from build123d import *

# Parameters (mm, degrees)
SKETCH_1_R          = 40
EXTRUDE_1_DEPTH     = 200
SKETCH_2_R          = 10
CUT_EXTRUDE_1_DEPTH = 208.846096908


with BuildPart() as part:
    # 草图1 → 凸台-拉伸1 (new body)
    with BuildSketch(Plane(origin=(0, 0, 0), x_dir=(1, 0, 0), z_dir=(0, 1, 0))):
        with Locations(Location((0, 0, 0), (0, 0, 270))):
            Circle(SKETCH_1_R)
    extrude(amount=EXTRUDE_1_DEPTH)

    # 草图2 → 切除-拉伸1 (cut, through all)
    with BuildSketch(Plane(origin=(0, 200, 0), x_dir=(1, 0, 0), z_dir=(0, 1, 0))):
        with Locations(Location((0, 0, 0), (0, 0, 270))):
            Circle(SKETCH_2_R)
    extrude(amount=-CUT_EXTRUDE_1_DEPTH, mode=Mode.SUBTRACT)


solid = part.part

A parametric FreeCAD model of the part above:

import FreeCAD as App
import Part
import Sketcher
from FreeCAD import Vector
Q = App.Units.Quantity

doc = App.newDocument("Part")
params = doc.addObject("Spreadsheet::Sheet", "Params")
for row, (alias, value) in enumerate([
    ("sketch1_diameter", "80 mm"),
    ("pad1_length", "200 mm"),
    ("sketch2_diameter", "20 mm"),
], start=1):
    params.set(f"A{row}", alias)
    params.set(f"B{row}", "=" + value)
    params.setAlias(f"B{row}", alias)

body = doc.addObject("PartDesign::Body", "Body")

sketch1 = body.newObject("Sketcher::SketchObject", "Sketch")
sketch1.AttachmentSupport = (doc.getObject("XZ_Plane"), [""])
sketch1.MapMode = "FlatFace"
sketch1.addGeometry(Part.Circle(Vector(0, 0, 0), Vector(0, 0, 1), 40), False)
sketch1.addConstraint(Sketcher.Constraint("Coincident", 0, 3, -1, 1))
sketch1.addConstraint(Sketcher.Constraint("Diameter", 0, Q("80 mm")))
sketch1.setExpression("Constraints[1]", "Params.sketch1_diameter")
pad1 = body.newObject("PartDesign::Pad", "Pad")
pad1.Profile = sketch1
pad1.setExpression("Length", "Params.pad1_length")
pad1.Reversed = True

sketch2 = body.newObject("Sketcher::SketchObject", "Sketch001")
sketch2.AttachmentSupport = (doc.getObject("XZ_Plane"), [""])
sketch2.MapMode = "FlatFace"
sketch2.AttachmentOffset = App.Placement(Vector(0, 0, -200), App.Rotation())
sketch2.addGeometry(Part.Circle(Vector(0, 0, 0), Vector(0, 0, 1), 10), False)
sketch2.addConstraint(Sketcher.Constraint("Coincident", 0, 3, -1, 1))
sketch2.addConstraint(Sketcher.Constraint("Diameter", 0, Q("20 mm")))
sketch2.setExpression("Constraints[1]", "Params.sketch2_diameter")
pocket1 = body.newObject("PartDesign::Pocket", "Pocket")
pocket1.Profile = sketch2
pocket1.Type = "ThroughAll"
pocket1.Reversed = True

doc.recompute()
